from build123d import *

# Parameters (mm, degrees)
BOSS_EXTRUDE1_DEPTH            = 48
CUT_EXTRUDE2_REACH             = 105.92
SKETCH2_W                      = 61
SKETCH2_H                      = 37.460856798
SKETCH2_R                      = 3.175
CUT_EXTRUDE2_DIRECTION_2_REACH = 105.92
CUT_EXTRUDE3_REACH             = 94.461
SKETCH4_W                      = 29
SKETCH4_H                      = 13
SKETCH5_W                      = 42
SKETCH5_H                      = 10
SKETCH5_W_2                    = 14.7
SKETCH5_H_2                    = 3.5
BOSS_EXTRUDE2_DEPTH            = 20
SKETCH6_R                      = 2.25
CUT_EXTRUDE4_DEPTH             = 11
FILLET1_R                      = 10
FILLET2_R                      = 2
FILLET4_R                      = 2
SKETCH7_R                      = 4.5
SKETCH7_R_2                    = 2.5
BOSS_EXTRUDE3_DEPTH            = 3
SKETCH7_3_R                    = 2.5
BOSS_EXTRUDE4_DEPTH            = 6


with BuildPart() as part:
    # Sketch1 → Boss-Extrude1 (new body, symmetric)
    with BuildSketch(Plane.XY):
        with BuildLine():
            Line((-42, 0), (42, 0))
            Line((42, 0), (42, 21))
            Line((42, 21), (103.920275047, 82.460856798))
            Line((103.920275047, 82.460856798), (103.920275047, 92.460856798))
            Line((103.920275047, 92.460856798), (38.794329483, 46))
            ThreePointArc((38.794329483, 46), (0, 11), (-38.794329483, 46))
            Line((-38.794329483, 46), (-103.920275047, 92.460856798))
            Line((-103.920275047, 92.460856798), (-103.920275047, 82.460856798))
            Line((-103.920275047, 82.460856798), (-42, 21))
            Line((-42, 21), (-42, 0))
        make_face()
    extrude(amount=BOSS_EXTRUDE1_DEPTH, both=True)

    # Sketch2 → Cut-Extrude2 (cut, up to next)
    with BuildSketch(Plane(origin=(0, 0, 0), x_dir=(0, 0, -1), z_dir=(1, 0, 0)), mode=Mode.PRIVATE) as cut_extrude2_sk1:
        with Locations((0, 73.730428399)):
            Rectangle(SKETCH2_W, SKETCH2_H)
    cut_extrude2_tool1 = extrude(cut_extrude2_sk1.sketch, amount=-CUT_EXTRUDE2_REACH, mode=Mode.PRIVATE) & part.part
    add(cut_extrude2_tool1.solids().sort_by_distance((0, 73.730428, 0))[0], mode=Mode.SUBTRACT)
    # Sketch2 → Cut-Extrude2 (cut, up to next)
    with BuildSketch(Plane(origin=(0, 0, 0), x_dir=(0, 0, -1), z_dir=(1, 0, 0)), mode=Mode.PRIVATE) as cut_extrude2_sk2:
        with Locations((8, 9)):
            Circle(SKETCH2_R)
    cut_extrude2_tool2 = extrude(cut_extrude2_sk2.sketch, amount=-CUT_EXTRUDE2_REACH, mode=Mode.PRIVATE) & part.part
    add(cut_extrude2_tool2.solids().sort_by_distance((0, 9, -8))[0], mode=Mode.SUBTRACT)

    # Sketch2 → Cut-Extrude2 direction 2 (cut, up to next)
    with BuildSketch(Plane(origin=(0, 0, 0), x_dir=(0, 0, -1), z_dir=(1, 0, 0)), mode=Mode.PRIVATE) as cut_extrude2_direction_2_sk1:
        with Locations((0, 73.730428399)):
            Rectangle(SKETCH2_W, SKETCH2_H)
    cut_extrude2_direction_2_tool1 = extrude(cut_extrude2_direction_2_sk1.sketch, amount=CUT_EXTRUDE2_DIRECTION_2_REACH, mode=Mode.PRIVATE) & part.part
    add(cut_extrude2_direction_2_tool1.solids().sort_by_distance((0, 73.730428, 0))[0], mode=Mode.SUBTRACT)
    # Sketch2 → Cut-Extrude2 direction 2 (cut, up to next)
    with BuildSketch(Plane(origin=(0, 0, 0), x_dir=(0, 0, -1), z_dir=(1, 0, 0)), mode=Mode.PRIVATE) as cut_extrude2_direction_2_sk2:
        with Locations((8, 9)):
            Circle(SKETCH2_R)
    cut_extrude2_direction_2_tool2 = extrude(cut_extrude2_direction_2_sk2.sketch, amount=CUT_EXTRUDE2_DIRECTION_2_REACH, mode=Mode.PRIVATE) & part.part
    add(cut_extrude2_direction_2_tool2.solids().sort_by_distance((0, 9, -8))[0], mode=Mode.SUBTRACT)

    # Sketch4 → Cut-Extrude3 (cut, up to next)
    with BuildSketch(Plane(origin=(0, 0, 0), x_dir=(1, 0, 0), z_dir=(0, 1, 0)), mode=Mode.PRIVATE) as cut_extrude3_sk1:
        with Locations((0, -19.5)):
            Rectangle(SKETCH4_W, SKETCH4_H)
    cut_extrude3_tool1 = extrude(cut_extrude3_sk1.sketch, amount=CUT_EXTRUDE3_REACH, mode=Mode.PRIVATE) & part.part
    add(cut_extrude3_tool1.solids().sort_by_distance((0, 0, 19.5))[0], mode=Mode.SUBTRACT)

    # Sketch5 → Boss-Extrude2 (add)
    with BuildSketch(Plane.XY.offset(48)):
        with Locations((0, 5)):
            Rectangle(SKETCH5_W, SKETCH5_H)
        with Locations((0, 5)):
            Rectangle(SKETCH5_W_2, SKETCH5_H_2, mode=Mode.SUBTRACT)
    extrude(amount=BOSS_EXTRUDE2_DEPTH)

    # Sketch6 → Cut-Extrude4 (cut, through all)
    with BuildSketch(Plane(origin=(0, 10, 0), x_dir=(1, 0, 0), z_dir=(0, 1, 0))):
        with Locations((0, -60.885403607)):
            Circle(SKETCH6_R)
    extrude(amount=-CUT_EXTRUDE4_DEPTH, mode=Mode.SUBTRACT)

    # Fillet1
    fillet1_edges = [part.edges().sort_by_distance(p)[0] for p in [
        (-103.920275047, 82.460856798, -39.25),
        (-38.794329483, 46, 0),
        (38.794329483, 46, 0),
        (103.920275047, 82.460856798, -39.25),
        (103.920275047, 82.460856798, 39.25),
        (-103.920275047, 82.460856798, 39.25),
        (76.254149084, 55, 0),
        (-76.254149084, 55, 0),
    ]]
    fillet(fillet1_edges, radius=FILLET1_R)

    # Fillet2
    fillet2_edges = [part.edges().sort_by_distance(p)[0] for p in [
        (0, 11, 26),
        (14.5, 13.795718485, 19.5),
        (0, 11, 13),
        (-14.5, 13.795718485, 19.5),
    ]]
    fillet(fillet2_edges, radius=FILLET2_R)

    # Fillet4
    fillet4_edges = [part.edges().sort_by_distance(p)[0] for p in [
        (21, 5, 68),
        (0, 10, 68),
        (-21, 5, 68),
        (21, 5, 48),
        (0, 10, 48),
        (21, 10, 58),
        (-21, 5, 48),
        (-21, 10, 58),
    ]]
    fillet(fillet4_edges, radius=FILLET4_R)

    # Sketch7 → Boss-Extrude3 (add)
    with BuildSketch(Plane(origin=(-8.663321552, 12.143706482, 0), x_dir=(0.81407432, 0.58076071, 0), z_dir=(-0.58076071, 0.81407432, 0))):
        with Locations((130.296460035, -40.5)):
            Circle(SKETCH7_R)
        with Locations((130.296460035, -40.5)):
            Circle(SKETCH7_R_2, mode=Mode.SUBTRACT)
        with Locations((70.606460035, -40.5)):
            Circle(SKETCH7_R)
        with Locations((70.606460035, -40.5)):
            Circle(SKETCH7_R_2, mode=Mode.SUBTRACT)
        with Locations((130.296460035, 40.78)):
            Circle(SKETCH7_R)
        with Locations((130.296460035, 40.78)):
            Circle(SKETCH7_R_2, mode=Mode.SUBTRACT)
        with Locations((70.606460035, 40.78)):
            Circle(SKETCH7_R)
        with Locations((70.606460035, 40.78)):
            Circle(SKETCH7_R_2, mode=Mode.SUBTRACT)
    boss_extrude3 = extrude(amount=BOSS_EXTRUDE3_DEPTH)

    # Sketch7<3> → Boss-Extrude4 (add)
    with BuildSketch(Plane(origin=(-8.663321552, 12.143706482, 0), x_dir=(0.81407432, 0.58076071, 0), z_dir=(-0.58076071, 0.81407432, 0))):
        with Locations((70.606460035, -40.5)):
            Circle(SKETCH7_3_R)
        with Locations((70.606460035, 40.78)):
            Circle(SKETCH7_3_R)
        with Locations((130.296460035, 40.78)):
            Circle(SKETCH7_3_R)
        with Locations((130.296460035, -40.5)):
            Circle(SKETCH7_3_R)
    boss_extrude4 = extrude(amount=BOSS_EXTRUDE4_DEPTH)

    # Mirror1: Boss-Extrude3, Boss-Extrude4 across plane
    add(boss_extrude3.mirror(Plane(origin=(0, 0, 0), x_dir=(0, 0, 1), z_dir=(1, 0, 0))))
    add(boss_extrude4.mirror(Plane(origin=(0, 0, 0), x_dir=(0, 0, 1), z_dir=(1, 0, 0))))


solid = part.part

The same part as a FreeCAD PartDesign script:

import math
import FreeCAD as App
import Part
import Sketcher
Q = App.Units.Quantity


def edges_at(feature, points):
    """Names of the edges that pass closest to the given points."""
    edges = feature.Shape.Edges
    near = lambda p: min(range(len(edges)), key=lambda i: edges[i].distToShape(Part.Vertex(*p))[0])
    return sorted({f"Edge{near(p) + 1}" for p in points})


def add_polygon(sketch, points):
    """Adds a closed chain of lines whose ends are joined by coincident constraints."""
    first, n = sketch.GeometryCount, len(points)
    for a, b in zip(points, points[1:] + points[:1]):
        sketch.addGeometry(Part.LineSegment(App.Vector(*a, 0), App.Vector(*b, 0)), False)
    for i in range(n):
        sketch.addConstraint(Sketcher.Constraint("Coincident", first + i, 2, first + (i + 1) % n, 1))

doc = App.newDocument("Part")
body = doc.addObject("PartDesign::Body", "Body")

# Sketch on XY plane
sketch1 = body.newObject("Sketcher::SketchObject", "Sketch")
sketch1.AttachmentSupport = (doc.getObject("XY_Plane"), [""])
sketch1.MapMode = "FlatFace"
sketch1.addGeometry([
    Part.LineSegment(App.Vector(-42, 0, 0), App.Vector(42, 0, 0)),  # 0
    Part.LineSegment(App.Vector(42, 0, 0), App.Vector(42, 21, 0)),  # 1
    Part.LineSegment(App.Vector(42, 21, 0), App.Vector(104, 82, 0)),  # 2
    Part.LineSegment(App.Vector(104, 82, 0), App.Vector(104, 92, 0)),  # 3
    Part.LineSegment(App.Vector(104, 92, 0), App.Vector(39, 46, 0)),  # 4
    Part.ArcOfCircle(Part.Circle(App.Vector(0, 50, 0), App.Vector(0, 0, 1), 39), math.radians(-174), math.radians(-6)),  # 5
    Part.LineSegment(App.Vector(-39, 46, 0), App.Vector(-104, 92, 0)),  # 6
    Part.LineSegment(App.Vector(-104, 92, 0), App.Vector(-104, 82, 0)),  # 7
    Part.LineSegment(App.Vector(-104, 82, 0), App.Vector(-42, 21, 0)),  # 8
    Part.LineSegment(App.Vector(-42, 21, 0), App.Vector(-42, 0, 0)),  # 9
], False)
sketch1.addConstraint([
    Sketcher.Constraint("Coincident", 0, 2, 1, 1),
    Sketcher.Constraint("Coincident", 1, 2, 2, 1),
    Sketcher.Constraint("Coincident", 2, 2, 3, 1),
    Sketcher.Constraint("Coincident", 3, 2, 4, 1),
    Sketcher.Constraint("Coincident", 4, 2, 5, 2),
    Sketcher.Constraint("Coincident", 5, 1, 6, 1),
    Sketcher.Constraint("Coincident", 6, 2, 7, 1),
    Sketcher.Constraint("Coincident", 7, 2, 8, 1),
    Sketcher.Constraint("Coincident", 8, 2, 9, 1),
    Sketcher.Constraint("Coincident", 9, 2, 0, 1),
    Sketcher.Constraint("Horizontal", 0),
    Sketcher.Constraint("Vertical", 1),
    Sketcher.Constraint("Vertical", 3),
    Sketcher.Constraint("Vertical", 7),
    Sketcher.Constraint("Vertical", 9),
    Sketcher.Constraint("Symmetric", 0, 2, 9, 2, -1, 1),
    Sketcher.Constraint("Symmetric", 4, 2, 5, 1, -2),
    Sketcher.Constraint("Symmetric", 3, 2, 6, 2, -2),
    Sketcher.Constraint("Horizontal", 2, 2, 7, 2),
    Sketcher.Constraint("Horizontal", 1, 2, 8, 2),
    Sketcher.Constraint("Radius", 5, Q("39 mm")),
    Sketcher.Constraint("DistanceX", 0, 1, 0, 2, Q("84 mm")),
    Sketcher.Constraint("DistanceY", 1, 1, 1, 2, Q("21 mm")),
    Sketcher.Constraint("DistanceY", 3, 1, 3, 2, Q("10 mm")),
    Sketcher.Constraint("Distance", 4, Q("80 mm")),
    Sketcher.Constraint("DistanceY", -1, 1, 5, 3, Q("50 mm")),
    Sketcher.Constraint("DistanceY", -1, 1, 4, 2, Q("46 mm")),
    Sketcher.Constraint("Distance", 2, Q("87.24424 mm")),
])
pad1 = body.newObject("PartDesign::Pad", "Pad")
pad1.Profile = sketch1
pad1.Length = 96
pad1.Midplane = True

# Sketch on YZ plane
sketch2 = body.newObject("Sketcher::SketchObject", "Sketch001")
sketch2.AttachmentSupport = (doc.getObject("YZ_Plane"), [""])
sketch2.MapMode = "FlatFace"
add_polygon(sketch2, [(92, 30), (55, 30), (55, -30), (92, -30)])  # lines 0-3
sketch2.addConstraint([
    Sketcher.Constraint("Horizontal", 0),
    Sketcher.Constraint("Vertical", 1),
    Sketcher.Constraint("Horizontal", 2),
    Sketcher.Constraint("Vertical", 3),
    Sketcher.Constraint("DistanceY", 1, 2, 1, 1, Q("61 mm")),
    Sketcher.Constraint("DistanceX", -1, 1, 0, 2, Q("55 mm")),
    Sketcher.Constraint("DistanceY", -1, 1, 0, 2, Q("30.5 mm")),
    Sketcher.Constraint("DistanceX", 0, 2, 0, 1, Q("37.460857 mm")),
])
pocket1 = body.newObject("PartDesign::Pocket", "Pocket")
pocket1.Profile = sketch2
pocket1.Length = 103.920275

# Sketch on YZ plane
sketch3 = body.newObject("Sketcher::SketchObject", "Sketch002")
sketch3.AttachmentSupport = (doc.getObject("YZ_Plane"), [""])
sketch3.MapMode = "FlatFace"
sketch3.addGeometry(Part.Circle(App.Vector(9, -8, 0), App.Vector(0, 0, 1), 3.2), False)
sketch3.addConstraint([
    Sketcher.Constraint("Diameter", 0, Q("6.35 mm")),
    Sketcher.Constraint("DistanceX", -1, 1, 0, 3, Q("9 mm")),
    Sketcher.Constraint("DistanceY", 0, 3, -1, 1, Q("8 mm")),
])
pocket2 = body.newObject("PartDesign::Pocket", "Pocket001")
pocket2.Profile = sketch3
pocket2.Type = "UpToFirst"

# Sketch on YZ plane
sketch4 = body.newObject("Sketcher::SketchObject", "Sketch003")
sketch4.AttachmentSupport = (doc.getObject("YZ_Plane"), [""])
sketch4.MapMode = "FlatFace"
add_polygon(sketch4, [(92, 30), (55, 30), (55, -30), (92, -30)])  # lines 0-3
sketch4.addConstraint([
    Sketcher.Constraint("Horizontal", 0),
    Sketcher.Constraint("Vertical", 1),
    Sketcher.Constraint("Horizontal", 2),
    Sketcher.Constraint("Vertical", 3),
    Sketcher.Constraint("DistanceY", 1, 2, 1, 1, Q("61 mm")),
    Sketcher.Constraint("DistanceX", -1, 1, 0, 2, Q("55 mm")),
    Sketcher.Constraint("DistanceY", -1, 1, 0, 2, Q("30.5 mm")),
    Sketcher.Constraint("DistanceX", 0, 2, 0, 1, Q("37.460857 mm")),
])
pocket3 = body.newObject("PartDesign::Pocket", "Pocket002")
pocket3.Profile = sketch4
pocket3.Length = 103.920275
pocket3.Reversed = True

# Sketch on YZ plane
sketch5 = body.newObject("Sketcher::SketchObject", "Sketch004")
sketch5.AttachmentSupport = (doc.getObject("YZ_Plane"), [""])
sketch5.MapMode = "FlatFace"
sketch5.addGeometry(Part.Circle(App.Vector(9, -8, 0), App.Vector(0, 0, 1), 3.2), False)
sketch5.addConstraint([
    Sketcher.Constraint("Diameter", 0, Q("6.35 mm")),
    Sketcher.Constraint("DistanceX", -1, 1, 0, 3, Q("9 mm")),
    Sketcher.Constraint("DistanceY", 0, 3, -1, 1, Q("8 mm")),
])
pocket4 = body.newObject("PartDesign::Pocket", "Pocket003")
pocket4.Profile = sketch5
pocket4.Type = "UpToFirst"
pocket4.Reversed = True

# Sketch on XZ plane
sketch6 = body.newObject("Sketcher::SketchObject", "Sketch005")
sketch6.AttachmentSupport = (doc.getObject("XZ_Plane"), [""])
sketch6.MapMode = "FlatFace"
add_polygon(sketch6, [(-14, 13), (-14, 26), (14, 26), (14, 13)])  # lines 0-3
sketch6.addConstraint([
    Sketcher.Constraint("Vertical", 0),
    Sketcher.Constraint("Horizontal", 1),
    Sketcher.Constraint("Vertical", 2),
    Sketcher.Constraint("Horizontal", 3),
    Sketcher.Constraint("DistanceX", 1, 1, 1, 2, Q("29 mm")),
    Sketcher.Constraint("DistanceY", 0, 1, 0, 2, Q("13 mm")),
    Sketcher.Constraint("DistanceY", -1, 1, 0, 2, Q("26 mm")),
    Sketcher.Constraint("DistanceX", 0, 2, -1, 1, Q("14.5 mm")),
])
pocket5 = body.newObject("PartDesign::Pocket", "Pocket004")
pocket5.Profile = sketch6
pocket5.Type = "UpToFirst"

# Sketch on XY plane
sketch7 = body.newObject("Sketcher::SketchObject", "Sketch006")
sketch7.AttachmentSupport = (doc.getObject("XY_Plane"), [""])
sketch7.MapMode = "FlatFace"
sketch7.AttachmentOffset = App.Placement(App.Vector(0, 0, 48), App.Rotation())
add_polygon(sketch7, [(-21, 10), (-21, 0), (21, 0), (21, 10)])  # lines 0-3
add_polygon(sketch7, [(7.3, 3.2), (-7.3, 3.2), (-7.3, 6.8), (7.3, 6.8)])  # lines 4-7
sketch7.addConstraint([
    Sketcher.Constraint("Vertical", 0),
    Sketcher.Constraint("Horizontal", 1),
    Sketcher.Constraint("Vertical", 2),
    Sketcher.Constraint("Horizontal", 3),
    Sketcher.Constraint("Horizontal", 4),
    Sketcher.Constraint("Vertical", 5),
    Sketcher.Constraint("Horizontal", 6),
    Sketcher.Constraint("Vertical", 7),
    Sketcher.Constraint("Symmetric", 0, 2, 1, 2, -1, 1),
    Sketcher.Constraint("DistanceX", 1, 1, 1, 2, Q("42 mm")),
    Sketcher.Constraint("DistanceY", 0, 2, 0, 1, Q("10 mm")),
    Sketcher.Constraint("DistanceX", 4, 2, 4, 1, Q("14.7 mm")),
    Sketcher.Constraint("DistanceY", 5, 1, 5, 2, Q("3.5 mm")),
    Sketcher.Constraint("DistanceX", 4, 2, -1, 1, Q("7.35 mm")),
    Sketcher.Constraint("DistanceY", -1, 1, 4, 2, Q("3.25 mm")),
])
pad2 = body.newObject("PartDesign::Pad", "Pad001")
pad2.Profile = sketch7
pad2.Length = 20

# Sketch on XZ plane
sketch8 = body.newObject("Sketcher::SketchObject", "Sketch007")
sketch8.AttachmentSupport = (doc.getObject("XZ_Plane"), [""])
sketch8.MapMode = "FlatFace"
sketch8.AttachmentOffset = App.Placement(App.Vector(0, 0, -10), App.Rotation())
sketch8.addGeometry(Part.Circle(App.Vector(0, 60.9, 0), App.Vector(0, 0, 1), 2.2), False)
sketch8.addConstraint([
    Sketcher.Constraint("PointOnObject", 0, 3, -2),
    Sketcher.Constraint("Diameter", 0, Q("4.5 mm")),
    Sketcher.Constraint("DistanceY", -1, 1, 0, 3, Q("60.885404 mm")),
])
pocket6 = body.newObject("PartDesign::Pocket", "Pocket005")
pocket6.Profile = sketch8
pocket6.Type = "ThroughAll"
pocket6.Reversed = True
doc.recompute()

fillet = body.newObject("PartDesign::Fillet", "Fillet")
fillet.Base = (pocket6, edges_at(pocket6, [
    (-103.92, 82.461, -39.25),
    (-38.794, 46, 0),
    (38.794, 46, 0),
    (103.92, 82.461, -39.25),
    (103.92, 82.461, 39.25),
    (-103.92, 82.461, 39.25),
    (76.254, 55, 0),
    (-76.254, 55, 0),
]))
fillet.Radius = 10
doc.recompute()

fillet2 = body.newObject("PartDesign::Fillet", "Fillet001")
fillet2.Base = (fillet, edges_at(fillet, [
    (0, 11, 26),
    (14.5, 13.796, 19.5),
    (0, 11, 13),
    (-14.5, 13.796, 19.5),
]))
fillet2.Radius = 2
doc.recompute()

fillet3 = body.newObject("PartDesign::Fillet", "Fillet002")
fillet3.Base = (fillet2, edges_at(fillet2, [
    (21, 5, 68),
    (0, 10, 68),
    (-21, 5, 68),
    (21, 5, 48),
    (0, 10, 48),
    (21, 10, 58),
    (-21, 5, 48),
    (-21, 10, 58),
]))
fillet3.Radius = 2

# Sketch on an angled plane
sketch9 = body.newObject("Sketcher::SketchObject", "Sketch008")
sketch9.Placement = App.Placement(App.Vector(-8.663322, 12.143706, 0), App.Rotation(App.Vector(0.81407432, 0.58076071, 0), App.Vector(0, 0, -1.000000001), App.Vector(-0.58076071, 0.81407432, 0), "ZXY"))
sketch9.addGeometry([
    Part.Circle(App.Vector(130.3, -40.5, 0), App.Vector(0, 0, 1), 4.5),  # 0
    Part.Circle(App.Vector(130.3, -40.5, 0), App.Vector(0, 0, 1), 2.5),  # 1
    Part.Circle(App.Vector(70.6, -40.5, 0), App.Vector(0, 0, 1), 4.5),  # 2
    Part.Circle(App.Vector(70.6, -40.5, 0), App.Vector(0, 0, 1), 2.5),  # 3
    Part.Circle(App.Vector(130.3, 40.8, 0), App.Vector(0, 0, 1), 4.5),  # 4
    Part.Circle(App.Vector(130.3, 40.8, 0), App.Vector(0, 0, 1), 2.5),  # 5
    Part.Circle(App.Vector(70.6, 40.8, 0), App.Vector(0, 0, 1), 4.5),  # 6
    Part.Circle(App.Vector(70.6, 40.8, 0), App.Vector(0, 0, 1), 2.5),  # 7
], False)
sketch9.addConstraint([
    Sketcher.Constraint("Coincident", 1, 3, 0, 3),
    Sketcher.Constraint("Coincident", 3, 3, 2, 3),
    Sketcher.Constraint("Coincident", 5, 3, 4, 3),
    Sketcher.Constraint("Coincident", 7, 3, 6, 3),
    Sketcher.Constraint("Equal", 0, 2),
    Sketcher.Constraint("Equal", 1, 3),
    Sketcher.Constraint("Equal", 2, 4),
    Sketcher.Constraint("Equal", 3, 5),
    Sketcher.Constraint("Equal", 4, 6),
    Sketcher.Constraint("Equal", 5, 7),
    Sketcher.Constraint("Horizontal", 1, 3, 2, 3),
    Sketcher.Constraint("Horizontal", 5, 3, 6, 3),
    Sketcher.Constraint("Vertical", 1, 3, 4, 3),
    Sketcher.Constraint("Vertical", 3, 3, 6, 3),
    Sketcher.Constraint("Diameter", 0, Q("9 mm")),
    Sketcher.Constraint("Diameter", 1, Q("5 mm")),
    Sketcher.Constraint("DistanceY", 0, 3, -1, 1, Q("40.5 mm")),
    Sketcher.Constraint("DistanceY", -1, 1, 4, 3, Q("40.78 mm")),
    Sketcher.Constraint("DistanceX", 2, 3, 0, 3, Q("59.69 mm")),
    Sketcher.Constraint("DistanceX", -1, 1, 0, 3, Q("130.29646 mm")),
])
pad3 = body.newObject("PartDesign::Pad", "Pad002")
pad3.Profile = sketch9
pad3.Length = 3

# Sketch on an angled plane
sketch10 = body.newObject("Sketcher::SketchObject", "Sketch009")
sketch10.Placement = App.Placement(App.Vector(-8.663322, 12.143706, 0), App.Rotation(App.Vector(0.81407432, 0.58076071, 0), App.Vector(0, 0, -1.000000001), App.Vector(-0.58076071, 0.81407432, 0), "ZXY"))
sketch10.addGeometry([
    Part.Circle(App.Vector(70.6, -40.5, 0), App.Vector(0, 0, 1), 2.5),
    Part.Circle(App.Vector(70.6, 40.8, 0), App.Vector(0, 0, 1), 2.5),
    Part.Circle(App.Vector(130.3, 40.8, 0), App.Vector(0, 0, 1), 2.5),
    Part.Circle(App.Vector(130.3, -40.5, 0), App.Vector(0, 0, 1), 2.5),
], False)
sketch10.addConstraint([
    Sketcher.Constraint("Equal", 0, 1),
    Sketcher.Constraint("Equal", 1, 2),
    Sketcher.Constraint("Equal", 2, 3),
    Sketcher.Constraint("Horizontal", 1, 3, 2, 3),
    Sketcher.Constraint("Horizontal", 0, 3, 3, 3),
    Sketcher.Constraint("Vertical", 0, 3, 1, 3),
    Sketcher.Constraint("Vertical", 2, 3, 3, 3),
    Sketcher.Constraint("Diameter", 0, Q("5 mm")),
    Sketcher.Constraint("DistanceY", 0, 3, -1, 1, Q("40.5 mm")),
    Sketcher.Constraint("DistanceY", -1, 1, 1, 3, Q("40.78 mm")),
    Sketcher.Constraint("DistanceX", 1, 3, 2, 3, Q("59.69 mm")),
    Sketcher.Constraint("DistanceX", -1, 1, 0, 3, Q("70.60646 mm")),
])
pad4 = body.newObject("PartDesign::Pad", "Pad003")
pad4.Profile = sketch10
pad4.Length = 6
doc.recompute()

mirrored = body.newObject("PartDesign::Mirrored", "Mirrored")
mirrored.Originals = [pad3, pad4]
mirrored.MirrorPlane = (doc.getObject("YZ_Plane"), [""])
body.Tip = mirrored

doc.recompute()
